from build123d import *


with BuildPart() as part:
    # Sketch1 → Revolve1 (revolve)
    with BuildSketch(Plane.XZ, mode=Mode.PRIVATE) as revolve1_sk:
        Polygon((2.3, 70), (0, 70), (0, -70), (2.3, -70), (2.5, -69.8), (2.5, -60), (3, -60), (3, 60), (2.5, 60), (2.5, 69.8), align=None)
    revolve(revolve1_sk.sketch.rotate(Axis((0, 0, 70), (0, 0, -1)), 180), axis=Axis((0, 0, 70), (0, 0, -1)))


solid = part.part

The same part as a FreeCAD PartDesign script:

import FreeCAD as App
import Part
import Sketcher
from FreeCAD import Vector
Q = App.Units.Quantity

doc = App.newDocument("Part")
body = doc.addObject("PartDesign::Body", "Body")

# Sketch on XZ plane
sketch1 = body.newObject("Sketcher::SketchObject", "Sketch")
sketch1.AttachmentSupport = (doc.getObject("XZ_Plane"), [""])
sketch1.MapMode = "FlatFace"
sketch1.addGeometry([
    Part.LineSegment(Vector(2.3, 70, 0), Vector(0, 70, 0)),  # 0
    Part.LineSegment(Vector(0, 70, 0), Vector(0, -70, 0)),  # 1
    Part.LineSegment(Vector(0, -70, 0), Vector(2.3, -70, 0)),  # 2
    Part.LineSegment(Vector(2.3, -70, 0), Vector(2.5, -69.8, 0)),  # 3
    Part.LineSegment(Vector(2.5, -69.8, 0), Vector(2.5, -60, 0)),  # 4
    Part.LineSegment(Vector(2.5, -60, 0), Vector(3, -60, 0)),  # 5
    Part.LineSegment(Vector(3, -60, 0), Vector(3, 60, 0)),  # 6
    Part.LineSegment(Vector(3, 60, 0), Vector(2.5, 60, 0)),  # 7
    Part.LineSegment(Vector(2.5, 60, 0), Vector(2.5, 69.8, 0)),  # 8
    Part.LineSegment(Vector(2.5, 69.8, 0), Vector(2.3, 70, 0)),  # 9
], False)
sketch1.addConstraint([
    Sketcher.Constraint("Coincident", 0, 2, 1, 1),
    Sketcher.Constraint("Coincident", 1, 2, 2, 1),
    Sketcher.Constraint("Coincident", 2, 2, 3, 1),
    Sketcher.Constraint("Coincident", 3, 2, 4, 1),
    Sketcher.Constraint("Coincident", 4, 2, 5, 1),
    Sketcher.Constraint("Coincident", 5, 2, 6, 1),
    Sketcher.Constraint("Coincident", 6, 2, 7, 1),
    Sketcher.Constraint("Coincident", 7, 2, 8, 1),
    Sketcher.Constraint("Coincident", 8, 2, 9, 1),
    Sketcher.Constraint("Coincident", 9, 2, 0, 1),
    Sketcher.Constraint("Horizontal", 0),
    Sketcher.Constraint("Vertical", 1),
    Sketcher.Constraint("Horizontal", 2),
    Sketcher.Constraint("Vertical", 4),
    Sketcher.Constraint("Horizontal", 5),
    Sketcher.Constraint("Vertical", 6),
    Sketcher.Constraint("Horizontal", 7),
    Sketcher.Constraint("Vertical", 8),
    Sketcher.Constraint("Symmetric", 0, 2, 1, 2, -1, 1),
    Sketcher.Constraint("Symmetric", 4, 2, 7, 2, -1),
    Sketcher.Constraint("Perpendicular", 3, 9),
    Sketcher.Constraint("Vertical", 2, 2, 9, 2),
    Sketcher.Constraint("Equal", 4, 8),
    Sketcher.Constraint("DistanceY", 1, 2, 1, 1, Q("140 mm")),
    Sketcher.Constraint("DistanceY", 6, 1, 6, 2, Q("120 mm")),
    Sketcher.Constraint("DistanceX", 0, 2, 0, 1, Q("2.3 mm")),
    Sketcher.Constraint("DistanceX", 5, 1, 5, 2, Q("0.5 mm")),
    Sketcher.Constraint("DistanceY", 4, 1, 4, 2, Q("9.8 mm")),
])
revolution = body.newObject("PartDesign::Revolution", "Revolution")
revolution.Profile = sketch1
revolution.ReferenceAxis = (sketch1, ["V_Axis"])
revolution.Angle = 360

doc.recompute()
